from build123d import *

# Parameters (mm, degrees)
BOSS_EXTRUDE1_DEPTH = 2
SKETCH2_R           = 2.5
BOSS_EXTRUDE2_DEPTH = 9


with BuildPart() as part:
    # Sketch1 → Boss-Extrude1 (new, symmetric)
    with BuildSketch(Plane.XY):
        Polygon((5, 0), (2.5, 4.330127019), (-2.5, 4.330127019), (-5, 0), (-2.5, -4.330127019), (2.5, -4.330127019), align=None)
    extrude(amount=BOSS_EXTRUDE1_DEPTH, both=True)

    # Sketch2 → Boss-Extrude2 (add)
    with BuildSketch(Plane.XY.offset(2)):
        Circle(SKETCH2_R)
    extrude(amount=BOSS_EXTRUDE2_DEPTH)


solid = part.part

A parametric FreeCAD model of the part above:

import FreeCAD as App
import Part
import Sketcher
Q = App.Units.Quantity

doc = App.newDocument("Part")
body = doc.addObject("PartDesign::Body", "Body")

sketch1 = body.newObject("Sketcher::SketchObject", "Sketch")
sketch1.AttachmentSupport = (doc.getObject("XY_Plane"), [""])
sketch1.MapMode = "FlatFace"
sketch1.addGeometry(Part.LineSegment(App.Vector(5, 0, 0), App.Vector(2, 4, 0)), False)
sketch1.addGeometry(Part.LineSegment(App.Vector(2, 4, 0), App.Vector(-2, 4, 0)), False)
sketch1.addGeometry(Part.LineSegment(App.Vector(-2, 4, 0), App.Vector(-5, 0, 0)), False)
sketch1.addGeometry(Part.LineSegment(App.Vector(-5, 0, 0), App.Vector(-2, -4, 0)), False)
sketch1.addGeometry(Part.LineSegment(App.Vector(-2, -4, 0), App.Vector(2, -4, 0)), False)
sketch1.addGeometry(Part.LineSegment(App.Vector(2, -4, 0), App.Vector(5, 0, 0)), False)
sketch1.addConstraint(Sketcher.Constraint("Coincident", 0, 2, 1, 1))
sketch1.addConstraint(Sketcher.Constraint("Coincident", 1, 2, 2, 1))
sketch1.addConstraint(Sketcher.Constraint("Coincident", 2, 2, 3, 1))
sketch1.addConstraint(Sketcher.Constraint("Coincident", 3, 2, 4, 1))
sketch1.addConstraint(Sketcher.Constraint("Coincident", 4, 2, 5, 1))
sketch1.addConstraint(Sketcher.Constraint("Coincident", 5, 2, 0, 1))
sketch1.addConstraint(Sketcher.Constraint("Horizontal", 1))
sketch1.addConstraint(Sketcher.Constraint("Horizontal", 4))
sketch1.addConstraint(Sketcher.Constraint("Symmetric", 0, 2, 3, 2, -1, 1))
sketch1.addConstraint(Sketcher.Constraint("Symmetric", 2, 2, 5, 2, -1, 1))
sketch1.addConstraint(Sketcher.Constraint("PointOnObject", 2, 2, -1))
sketch1.addConstraint(Sketcher.Constraint("Parallel", 2, 5))
sketch1.addConstraint(Sketcher.Constraint("Vertical", 1, 2, 3, 2))
sketch1.addConstraint(Sketcher.Constraint("DistanceX", 1, 2, 1, 1, 5.0))
sketch1.addConstraint(Sketcher.Constraint("Angle", 0, Q("120 deg")))
sketch1.addConstraint(Sketcher.Constraint("Distance", 0, 5.0))
pad1 = body.newObject("PartDesign::Pad", "Pad")
pad1.Profile = sketch1
pad1.Length = 4
pad1.Midplane = True

sketch2 = body.newObject("Sketcher::SketchObject", "Sketch001")
sketch2.AttachmentSupport = (doc.getObject("XY_Plane"), [""])
sketch2.MapMode = "FlatFace"
sketch2.AttachmentOffset = App.Placement(App.Vector(0, 0, 2), App.Rotation())
sketch2.addGeometry(Part.Circle(App.Vector(0, 0, 0), App.Vector(0, 0, 1), 2.5), False)
sketch2.addConstraint(Sketcher.Constraint("Coincident", 0, 3, -1, 1))
sketch2.addConstraint(Sketcher.Constraint("Diameter", 0, 5.0))
pad2 = body.newObject("PartDesign::Pad", "Pad001")
pad2.Profile = sketch2
pad2.Length = 9

doc.recompute()
